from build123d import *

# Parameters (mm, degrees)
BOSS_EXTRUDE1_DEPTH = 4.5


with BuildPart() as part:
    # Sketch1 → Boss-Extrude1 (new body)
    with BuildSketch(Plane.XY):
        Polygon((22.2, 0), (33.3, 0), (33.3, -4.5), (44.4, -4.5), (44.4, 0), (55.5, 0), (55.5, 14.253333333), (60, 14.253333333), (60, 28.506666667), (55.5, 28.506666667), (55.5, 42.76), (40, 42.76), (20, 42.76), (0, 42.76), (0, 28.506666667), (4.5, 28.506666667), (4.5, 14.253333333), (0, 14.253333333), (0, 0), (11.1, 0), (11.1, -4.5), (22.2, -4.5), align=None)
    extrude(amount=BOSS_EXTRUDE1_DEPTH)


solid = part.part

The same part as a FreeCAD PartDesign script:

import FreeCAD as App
import Part
import Sketcher
Q = App.Units.Quantity

doc = App.newDocument("Part")
body = doc.addObject("PartDesign::Body", "Body")

sketch1 = body.newObject("Sketcher::SketchObject", "Sketch")
sketch1.AttachmentSupport = (doc.getObject("XY_Plane"), [""])
sketch1.MapMode = "FlatFace"
sketch1.addGeometry([
    Part.LineSegment(App.Vector(22.2, 0, 0), App.Vector(33.3, 0, 0)),
    Part.LineSegment(App.Vector(33.3, 0, 0), App.Vector(33.3, -4.5, 0)),
    Part.LineSegment(App.Vector(33.3, -4.5, 0), App.Vector(44.4, -4.5, 0)),
    Part.LineSegment(App.Vector(44.4, -4.5, 0), App.Vector(44.4, 0, 0)),
    Part.LineSegment(App.Vector(44.4, 0, 0), App.Vector(55.5, 0, 0)),
    Part.LineSegment(App.Vector(55.5, 0, 0), App.Vector(55.5, 14.3, 0)),
    Part.LineSegment(App.Vector(55.5, 14.3, 0), App.Vector(60, 14.3, 0)),
    Part.LineSegment(App.Vector(60, 14.3, 0), App.Vector(60, 28.5, 0)),
    Part.LineSegment(App.Vector(60, 28.5, 0), App.Vector(55.5, 28.5, 0)),
    Part.LineSegment(App.Vector(55.5, 28.5, 0), App.Vector(55.5, 42.8, 0)),
    Part.LineSegment(App.Vector(55.5, 42.8, 0), App.Vector(0, 42.8, 0)),
    Part.LineSegment(App.Vector(0, 42.8, 0), App.Vector(0, 28.5, 0)),
    Part.LineSegment(App.Vector(0, 28.5, 0), App.Vector(4.5, 28.5, 0)),
    Part.LineSegment(App.Vector(4.5, 28.5, 0), App.Vector(4.5, 14.3, 0)),
    Part.LineSegment(App.Vector(4.5, 14.3, 0), App.Vector(0, 14.3, 0)),
    Part.LineSegment(App.Vector(0, 14.3, 0), App.Vector(0, 0, 0)),
    Part.LineSegment(App.Vector(0, 0, 0), App.Vector(11.1, 0, 0)),
    Part.LineSegment(App.Vector(11.1, 0, 0), App.Vector(11.1, -4.5, 0)),
    Part.LineSegment(App.Vector(11.1, -4.5, 0), App.Vector(22.2, -4.5, 0)),
    Part.LineSegment(App.Vector(22.2, -4.5, 0), App.Vector(22.2, 0, 0)),
], False)
sketch1.addConstraint([
    Sketcher.Constraint("Coincident", 0, 2, 1, 1),
    Sketcher.Constraint("Coincident", 1, 2, 2, 1),
    Sketcher.Constraint("Coincident", 2, 2, 3, 1),
    Sketcher.Constraint("Coincident", 3, 2, 4, 1),
    Sketcher.Constraint("Coincident", 4, 2, 5, 1),
    Sketcher.Constraint("Coincident", 5, 2, 6, 1),
    Sketcher.Constraint("Coincident", 6, 2, 7, 1),
    Sketcher.Constraint("Coincident", 7, 2, 8, 1),
    Sketcher.Constraint("Coincident", 8, 2, 9, 1),
    Sketcher.Constraint("Coincident", 9, 2, 10, 1),
    Sketcher.Constraint("Coincident", 10, 2, 11, 1),
    Sketcher.Constraint("Coincident", 11, 2, 12, 1),
    Sketcher.Constraint("Coincident", 12, 2, 13, 1),
    Sketcher.Constraint("Coincident", 13, 2, 14, 1),
    Sketcher.Constraint("Coincident", 14, 2, 15, 1),
    Sketcher.Constraint("Coincident", 15, 2, 16, 1),
    Sketcher.Constraint("Coincident", 16, 2, 17, 1),
    Sketcher.Constraint("Coincident", 17, 2, 18, 1),
    Sketcher.Constraint("Coincident", 18, 2, 19, 1),
    Sketcher.Constraint("Coincident", 19, 2, 0, 1),
    Sketcher.Constraint("Horizontal", 0),
    Sketcher.Constraint("Vertical", 1),
    Sketcher.Constraint("Horizontal", 2),
    Sketcher.Constraint("Vertical", 3),
    Sketcher.Constraint("Horizontal", 4),
    Sketcher.Constraint("Vertical", 5),
    Sketcher.Constraint("Horizontal", 6),
    Sketcher.Constraint("Vertical", 7),
    Sketcher.Constraint("Horizontal", 8),
    Sketcher.Constraint("Vertical", 9),
    Sketcher.Constraint("Horizontal", 10),
    Sketcher.Constraint("Vertical", 11),
    Sketcher.Constraint("Horizontal", 12),
    Sketcher.Constraint("Vertical", 13),
    Sketcher.Constraint("Horizontal", 14),
    Sketcher.Constraint("Vertical", 15),
    Sketcher.Constraint("Horizontal", 16),
    Sketcher.Constraint("Vertical", 17),
    Sketcher.Constraint("Horizontal", 18),
    Sketcher.Constraint("Vertical", 19),
    Sketcher.Constraint("Coincident", 15, 2, -1, 1),
    Sketcher.Constraint("PointOnObject", 0, 2, -1),
    Sketcher.Constraint("PointOnObject", 3, 2, -1),
    Sketcher.Constraint("PointOnObject", 10, 2, -2),
    Sketcher.Constraint("Horizontal", 8, 2, 11, 2),
    Sketcher.Constraint("Horizontal", 6, 2, 13, 2),
    Sketcher.Constraint("Horizontal", 2, 2, 17, 2),
    Sketcher.Constraint("Vertical", 5, 2, 8, 2),
    Sketcher.Constraint("Equal", 0, 2),
    Sketcher.Constraint("Equal", 2, 4),
    Sketcher.Constraint("Equal", 8, 12),
    Sketcher.Constraint("Equal", 4, 16),
    Sketcher.Constraint("Equal", 16, 18),
    Sketcher.Constraint("Equal", 14, 1),
    Sketcher.Constraint("Equal", 5, 7),
    Sketcher.Constraint("Equal", 7, 9),
    Sketcher.Constraint("DistanceX", 0, 1, 0, 2, Q("11.1 mm")),
    Sketcher.Constraint("DistanceX", 6, 1, 6, 2, Q("4.5 mm")),
    Sketcher.Constraint("DistanceY", -1, 1, 9, 2, Q("42.76 mm")),
])
pad1 = body.newObject("PartDesign::Pad", "Pad")
pad1.Profile = sketch1
pad1.Length = 4.5

doc.recompute()
